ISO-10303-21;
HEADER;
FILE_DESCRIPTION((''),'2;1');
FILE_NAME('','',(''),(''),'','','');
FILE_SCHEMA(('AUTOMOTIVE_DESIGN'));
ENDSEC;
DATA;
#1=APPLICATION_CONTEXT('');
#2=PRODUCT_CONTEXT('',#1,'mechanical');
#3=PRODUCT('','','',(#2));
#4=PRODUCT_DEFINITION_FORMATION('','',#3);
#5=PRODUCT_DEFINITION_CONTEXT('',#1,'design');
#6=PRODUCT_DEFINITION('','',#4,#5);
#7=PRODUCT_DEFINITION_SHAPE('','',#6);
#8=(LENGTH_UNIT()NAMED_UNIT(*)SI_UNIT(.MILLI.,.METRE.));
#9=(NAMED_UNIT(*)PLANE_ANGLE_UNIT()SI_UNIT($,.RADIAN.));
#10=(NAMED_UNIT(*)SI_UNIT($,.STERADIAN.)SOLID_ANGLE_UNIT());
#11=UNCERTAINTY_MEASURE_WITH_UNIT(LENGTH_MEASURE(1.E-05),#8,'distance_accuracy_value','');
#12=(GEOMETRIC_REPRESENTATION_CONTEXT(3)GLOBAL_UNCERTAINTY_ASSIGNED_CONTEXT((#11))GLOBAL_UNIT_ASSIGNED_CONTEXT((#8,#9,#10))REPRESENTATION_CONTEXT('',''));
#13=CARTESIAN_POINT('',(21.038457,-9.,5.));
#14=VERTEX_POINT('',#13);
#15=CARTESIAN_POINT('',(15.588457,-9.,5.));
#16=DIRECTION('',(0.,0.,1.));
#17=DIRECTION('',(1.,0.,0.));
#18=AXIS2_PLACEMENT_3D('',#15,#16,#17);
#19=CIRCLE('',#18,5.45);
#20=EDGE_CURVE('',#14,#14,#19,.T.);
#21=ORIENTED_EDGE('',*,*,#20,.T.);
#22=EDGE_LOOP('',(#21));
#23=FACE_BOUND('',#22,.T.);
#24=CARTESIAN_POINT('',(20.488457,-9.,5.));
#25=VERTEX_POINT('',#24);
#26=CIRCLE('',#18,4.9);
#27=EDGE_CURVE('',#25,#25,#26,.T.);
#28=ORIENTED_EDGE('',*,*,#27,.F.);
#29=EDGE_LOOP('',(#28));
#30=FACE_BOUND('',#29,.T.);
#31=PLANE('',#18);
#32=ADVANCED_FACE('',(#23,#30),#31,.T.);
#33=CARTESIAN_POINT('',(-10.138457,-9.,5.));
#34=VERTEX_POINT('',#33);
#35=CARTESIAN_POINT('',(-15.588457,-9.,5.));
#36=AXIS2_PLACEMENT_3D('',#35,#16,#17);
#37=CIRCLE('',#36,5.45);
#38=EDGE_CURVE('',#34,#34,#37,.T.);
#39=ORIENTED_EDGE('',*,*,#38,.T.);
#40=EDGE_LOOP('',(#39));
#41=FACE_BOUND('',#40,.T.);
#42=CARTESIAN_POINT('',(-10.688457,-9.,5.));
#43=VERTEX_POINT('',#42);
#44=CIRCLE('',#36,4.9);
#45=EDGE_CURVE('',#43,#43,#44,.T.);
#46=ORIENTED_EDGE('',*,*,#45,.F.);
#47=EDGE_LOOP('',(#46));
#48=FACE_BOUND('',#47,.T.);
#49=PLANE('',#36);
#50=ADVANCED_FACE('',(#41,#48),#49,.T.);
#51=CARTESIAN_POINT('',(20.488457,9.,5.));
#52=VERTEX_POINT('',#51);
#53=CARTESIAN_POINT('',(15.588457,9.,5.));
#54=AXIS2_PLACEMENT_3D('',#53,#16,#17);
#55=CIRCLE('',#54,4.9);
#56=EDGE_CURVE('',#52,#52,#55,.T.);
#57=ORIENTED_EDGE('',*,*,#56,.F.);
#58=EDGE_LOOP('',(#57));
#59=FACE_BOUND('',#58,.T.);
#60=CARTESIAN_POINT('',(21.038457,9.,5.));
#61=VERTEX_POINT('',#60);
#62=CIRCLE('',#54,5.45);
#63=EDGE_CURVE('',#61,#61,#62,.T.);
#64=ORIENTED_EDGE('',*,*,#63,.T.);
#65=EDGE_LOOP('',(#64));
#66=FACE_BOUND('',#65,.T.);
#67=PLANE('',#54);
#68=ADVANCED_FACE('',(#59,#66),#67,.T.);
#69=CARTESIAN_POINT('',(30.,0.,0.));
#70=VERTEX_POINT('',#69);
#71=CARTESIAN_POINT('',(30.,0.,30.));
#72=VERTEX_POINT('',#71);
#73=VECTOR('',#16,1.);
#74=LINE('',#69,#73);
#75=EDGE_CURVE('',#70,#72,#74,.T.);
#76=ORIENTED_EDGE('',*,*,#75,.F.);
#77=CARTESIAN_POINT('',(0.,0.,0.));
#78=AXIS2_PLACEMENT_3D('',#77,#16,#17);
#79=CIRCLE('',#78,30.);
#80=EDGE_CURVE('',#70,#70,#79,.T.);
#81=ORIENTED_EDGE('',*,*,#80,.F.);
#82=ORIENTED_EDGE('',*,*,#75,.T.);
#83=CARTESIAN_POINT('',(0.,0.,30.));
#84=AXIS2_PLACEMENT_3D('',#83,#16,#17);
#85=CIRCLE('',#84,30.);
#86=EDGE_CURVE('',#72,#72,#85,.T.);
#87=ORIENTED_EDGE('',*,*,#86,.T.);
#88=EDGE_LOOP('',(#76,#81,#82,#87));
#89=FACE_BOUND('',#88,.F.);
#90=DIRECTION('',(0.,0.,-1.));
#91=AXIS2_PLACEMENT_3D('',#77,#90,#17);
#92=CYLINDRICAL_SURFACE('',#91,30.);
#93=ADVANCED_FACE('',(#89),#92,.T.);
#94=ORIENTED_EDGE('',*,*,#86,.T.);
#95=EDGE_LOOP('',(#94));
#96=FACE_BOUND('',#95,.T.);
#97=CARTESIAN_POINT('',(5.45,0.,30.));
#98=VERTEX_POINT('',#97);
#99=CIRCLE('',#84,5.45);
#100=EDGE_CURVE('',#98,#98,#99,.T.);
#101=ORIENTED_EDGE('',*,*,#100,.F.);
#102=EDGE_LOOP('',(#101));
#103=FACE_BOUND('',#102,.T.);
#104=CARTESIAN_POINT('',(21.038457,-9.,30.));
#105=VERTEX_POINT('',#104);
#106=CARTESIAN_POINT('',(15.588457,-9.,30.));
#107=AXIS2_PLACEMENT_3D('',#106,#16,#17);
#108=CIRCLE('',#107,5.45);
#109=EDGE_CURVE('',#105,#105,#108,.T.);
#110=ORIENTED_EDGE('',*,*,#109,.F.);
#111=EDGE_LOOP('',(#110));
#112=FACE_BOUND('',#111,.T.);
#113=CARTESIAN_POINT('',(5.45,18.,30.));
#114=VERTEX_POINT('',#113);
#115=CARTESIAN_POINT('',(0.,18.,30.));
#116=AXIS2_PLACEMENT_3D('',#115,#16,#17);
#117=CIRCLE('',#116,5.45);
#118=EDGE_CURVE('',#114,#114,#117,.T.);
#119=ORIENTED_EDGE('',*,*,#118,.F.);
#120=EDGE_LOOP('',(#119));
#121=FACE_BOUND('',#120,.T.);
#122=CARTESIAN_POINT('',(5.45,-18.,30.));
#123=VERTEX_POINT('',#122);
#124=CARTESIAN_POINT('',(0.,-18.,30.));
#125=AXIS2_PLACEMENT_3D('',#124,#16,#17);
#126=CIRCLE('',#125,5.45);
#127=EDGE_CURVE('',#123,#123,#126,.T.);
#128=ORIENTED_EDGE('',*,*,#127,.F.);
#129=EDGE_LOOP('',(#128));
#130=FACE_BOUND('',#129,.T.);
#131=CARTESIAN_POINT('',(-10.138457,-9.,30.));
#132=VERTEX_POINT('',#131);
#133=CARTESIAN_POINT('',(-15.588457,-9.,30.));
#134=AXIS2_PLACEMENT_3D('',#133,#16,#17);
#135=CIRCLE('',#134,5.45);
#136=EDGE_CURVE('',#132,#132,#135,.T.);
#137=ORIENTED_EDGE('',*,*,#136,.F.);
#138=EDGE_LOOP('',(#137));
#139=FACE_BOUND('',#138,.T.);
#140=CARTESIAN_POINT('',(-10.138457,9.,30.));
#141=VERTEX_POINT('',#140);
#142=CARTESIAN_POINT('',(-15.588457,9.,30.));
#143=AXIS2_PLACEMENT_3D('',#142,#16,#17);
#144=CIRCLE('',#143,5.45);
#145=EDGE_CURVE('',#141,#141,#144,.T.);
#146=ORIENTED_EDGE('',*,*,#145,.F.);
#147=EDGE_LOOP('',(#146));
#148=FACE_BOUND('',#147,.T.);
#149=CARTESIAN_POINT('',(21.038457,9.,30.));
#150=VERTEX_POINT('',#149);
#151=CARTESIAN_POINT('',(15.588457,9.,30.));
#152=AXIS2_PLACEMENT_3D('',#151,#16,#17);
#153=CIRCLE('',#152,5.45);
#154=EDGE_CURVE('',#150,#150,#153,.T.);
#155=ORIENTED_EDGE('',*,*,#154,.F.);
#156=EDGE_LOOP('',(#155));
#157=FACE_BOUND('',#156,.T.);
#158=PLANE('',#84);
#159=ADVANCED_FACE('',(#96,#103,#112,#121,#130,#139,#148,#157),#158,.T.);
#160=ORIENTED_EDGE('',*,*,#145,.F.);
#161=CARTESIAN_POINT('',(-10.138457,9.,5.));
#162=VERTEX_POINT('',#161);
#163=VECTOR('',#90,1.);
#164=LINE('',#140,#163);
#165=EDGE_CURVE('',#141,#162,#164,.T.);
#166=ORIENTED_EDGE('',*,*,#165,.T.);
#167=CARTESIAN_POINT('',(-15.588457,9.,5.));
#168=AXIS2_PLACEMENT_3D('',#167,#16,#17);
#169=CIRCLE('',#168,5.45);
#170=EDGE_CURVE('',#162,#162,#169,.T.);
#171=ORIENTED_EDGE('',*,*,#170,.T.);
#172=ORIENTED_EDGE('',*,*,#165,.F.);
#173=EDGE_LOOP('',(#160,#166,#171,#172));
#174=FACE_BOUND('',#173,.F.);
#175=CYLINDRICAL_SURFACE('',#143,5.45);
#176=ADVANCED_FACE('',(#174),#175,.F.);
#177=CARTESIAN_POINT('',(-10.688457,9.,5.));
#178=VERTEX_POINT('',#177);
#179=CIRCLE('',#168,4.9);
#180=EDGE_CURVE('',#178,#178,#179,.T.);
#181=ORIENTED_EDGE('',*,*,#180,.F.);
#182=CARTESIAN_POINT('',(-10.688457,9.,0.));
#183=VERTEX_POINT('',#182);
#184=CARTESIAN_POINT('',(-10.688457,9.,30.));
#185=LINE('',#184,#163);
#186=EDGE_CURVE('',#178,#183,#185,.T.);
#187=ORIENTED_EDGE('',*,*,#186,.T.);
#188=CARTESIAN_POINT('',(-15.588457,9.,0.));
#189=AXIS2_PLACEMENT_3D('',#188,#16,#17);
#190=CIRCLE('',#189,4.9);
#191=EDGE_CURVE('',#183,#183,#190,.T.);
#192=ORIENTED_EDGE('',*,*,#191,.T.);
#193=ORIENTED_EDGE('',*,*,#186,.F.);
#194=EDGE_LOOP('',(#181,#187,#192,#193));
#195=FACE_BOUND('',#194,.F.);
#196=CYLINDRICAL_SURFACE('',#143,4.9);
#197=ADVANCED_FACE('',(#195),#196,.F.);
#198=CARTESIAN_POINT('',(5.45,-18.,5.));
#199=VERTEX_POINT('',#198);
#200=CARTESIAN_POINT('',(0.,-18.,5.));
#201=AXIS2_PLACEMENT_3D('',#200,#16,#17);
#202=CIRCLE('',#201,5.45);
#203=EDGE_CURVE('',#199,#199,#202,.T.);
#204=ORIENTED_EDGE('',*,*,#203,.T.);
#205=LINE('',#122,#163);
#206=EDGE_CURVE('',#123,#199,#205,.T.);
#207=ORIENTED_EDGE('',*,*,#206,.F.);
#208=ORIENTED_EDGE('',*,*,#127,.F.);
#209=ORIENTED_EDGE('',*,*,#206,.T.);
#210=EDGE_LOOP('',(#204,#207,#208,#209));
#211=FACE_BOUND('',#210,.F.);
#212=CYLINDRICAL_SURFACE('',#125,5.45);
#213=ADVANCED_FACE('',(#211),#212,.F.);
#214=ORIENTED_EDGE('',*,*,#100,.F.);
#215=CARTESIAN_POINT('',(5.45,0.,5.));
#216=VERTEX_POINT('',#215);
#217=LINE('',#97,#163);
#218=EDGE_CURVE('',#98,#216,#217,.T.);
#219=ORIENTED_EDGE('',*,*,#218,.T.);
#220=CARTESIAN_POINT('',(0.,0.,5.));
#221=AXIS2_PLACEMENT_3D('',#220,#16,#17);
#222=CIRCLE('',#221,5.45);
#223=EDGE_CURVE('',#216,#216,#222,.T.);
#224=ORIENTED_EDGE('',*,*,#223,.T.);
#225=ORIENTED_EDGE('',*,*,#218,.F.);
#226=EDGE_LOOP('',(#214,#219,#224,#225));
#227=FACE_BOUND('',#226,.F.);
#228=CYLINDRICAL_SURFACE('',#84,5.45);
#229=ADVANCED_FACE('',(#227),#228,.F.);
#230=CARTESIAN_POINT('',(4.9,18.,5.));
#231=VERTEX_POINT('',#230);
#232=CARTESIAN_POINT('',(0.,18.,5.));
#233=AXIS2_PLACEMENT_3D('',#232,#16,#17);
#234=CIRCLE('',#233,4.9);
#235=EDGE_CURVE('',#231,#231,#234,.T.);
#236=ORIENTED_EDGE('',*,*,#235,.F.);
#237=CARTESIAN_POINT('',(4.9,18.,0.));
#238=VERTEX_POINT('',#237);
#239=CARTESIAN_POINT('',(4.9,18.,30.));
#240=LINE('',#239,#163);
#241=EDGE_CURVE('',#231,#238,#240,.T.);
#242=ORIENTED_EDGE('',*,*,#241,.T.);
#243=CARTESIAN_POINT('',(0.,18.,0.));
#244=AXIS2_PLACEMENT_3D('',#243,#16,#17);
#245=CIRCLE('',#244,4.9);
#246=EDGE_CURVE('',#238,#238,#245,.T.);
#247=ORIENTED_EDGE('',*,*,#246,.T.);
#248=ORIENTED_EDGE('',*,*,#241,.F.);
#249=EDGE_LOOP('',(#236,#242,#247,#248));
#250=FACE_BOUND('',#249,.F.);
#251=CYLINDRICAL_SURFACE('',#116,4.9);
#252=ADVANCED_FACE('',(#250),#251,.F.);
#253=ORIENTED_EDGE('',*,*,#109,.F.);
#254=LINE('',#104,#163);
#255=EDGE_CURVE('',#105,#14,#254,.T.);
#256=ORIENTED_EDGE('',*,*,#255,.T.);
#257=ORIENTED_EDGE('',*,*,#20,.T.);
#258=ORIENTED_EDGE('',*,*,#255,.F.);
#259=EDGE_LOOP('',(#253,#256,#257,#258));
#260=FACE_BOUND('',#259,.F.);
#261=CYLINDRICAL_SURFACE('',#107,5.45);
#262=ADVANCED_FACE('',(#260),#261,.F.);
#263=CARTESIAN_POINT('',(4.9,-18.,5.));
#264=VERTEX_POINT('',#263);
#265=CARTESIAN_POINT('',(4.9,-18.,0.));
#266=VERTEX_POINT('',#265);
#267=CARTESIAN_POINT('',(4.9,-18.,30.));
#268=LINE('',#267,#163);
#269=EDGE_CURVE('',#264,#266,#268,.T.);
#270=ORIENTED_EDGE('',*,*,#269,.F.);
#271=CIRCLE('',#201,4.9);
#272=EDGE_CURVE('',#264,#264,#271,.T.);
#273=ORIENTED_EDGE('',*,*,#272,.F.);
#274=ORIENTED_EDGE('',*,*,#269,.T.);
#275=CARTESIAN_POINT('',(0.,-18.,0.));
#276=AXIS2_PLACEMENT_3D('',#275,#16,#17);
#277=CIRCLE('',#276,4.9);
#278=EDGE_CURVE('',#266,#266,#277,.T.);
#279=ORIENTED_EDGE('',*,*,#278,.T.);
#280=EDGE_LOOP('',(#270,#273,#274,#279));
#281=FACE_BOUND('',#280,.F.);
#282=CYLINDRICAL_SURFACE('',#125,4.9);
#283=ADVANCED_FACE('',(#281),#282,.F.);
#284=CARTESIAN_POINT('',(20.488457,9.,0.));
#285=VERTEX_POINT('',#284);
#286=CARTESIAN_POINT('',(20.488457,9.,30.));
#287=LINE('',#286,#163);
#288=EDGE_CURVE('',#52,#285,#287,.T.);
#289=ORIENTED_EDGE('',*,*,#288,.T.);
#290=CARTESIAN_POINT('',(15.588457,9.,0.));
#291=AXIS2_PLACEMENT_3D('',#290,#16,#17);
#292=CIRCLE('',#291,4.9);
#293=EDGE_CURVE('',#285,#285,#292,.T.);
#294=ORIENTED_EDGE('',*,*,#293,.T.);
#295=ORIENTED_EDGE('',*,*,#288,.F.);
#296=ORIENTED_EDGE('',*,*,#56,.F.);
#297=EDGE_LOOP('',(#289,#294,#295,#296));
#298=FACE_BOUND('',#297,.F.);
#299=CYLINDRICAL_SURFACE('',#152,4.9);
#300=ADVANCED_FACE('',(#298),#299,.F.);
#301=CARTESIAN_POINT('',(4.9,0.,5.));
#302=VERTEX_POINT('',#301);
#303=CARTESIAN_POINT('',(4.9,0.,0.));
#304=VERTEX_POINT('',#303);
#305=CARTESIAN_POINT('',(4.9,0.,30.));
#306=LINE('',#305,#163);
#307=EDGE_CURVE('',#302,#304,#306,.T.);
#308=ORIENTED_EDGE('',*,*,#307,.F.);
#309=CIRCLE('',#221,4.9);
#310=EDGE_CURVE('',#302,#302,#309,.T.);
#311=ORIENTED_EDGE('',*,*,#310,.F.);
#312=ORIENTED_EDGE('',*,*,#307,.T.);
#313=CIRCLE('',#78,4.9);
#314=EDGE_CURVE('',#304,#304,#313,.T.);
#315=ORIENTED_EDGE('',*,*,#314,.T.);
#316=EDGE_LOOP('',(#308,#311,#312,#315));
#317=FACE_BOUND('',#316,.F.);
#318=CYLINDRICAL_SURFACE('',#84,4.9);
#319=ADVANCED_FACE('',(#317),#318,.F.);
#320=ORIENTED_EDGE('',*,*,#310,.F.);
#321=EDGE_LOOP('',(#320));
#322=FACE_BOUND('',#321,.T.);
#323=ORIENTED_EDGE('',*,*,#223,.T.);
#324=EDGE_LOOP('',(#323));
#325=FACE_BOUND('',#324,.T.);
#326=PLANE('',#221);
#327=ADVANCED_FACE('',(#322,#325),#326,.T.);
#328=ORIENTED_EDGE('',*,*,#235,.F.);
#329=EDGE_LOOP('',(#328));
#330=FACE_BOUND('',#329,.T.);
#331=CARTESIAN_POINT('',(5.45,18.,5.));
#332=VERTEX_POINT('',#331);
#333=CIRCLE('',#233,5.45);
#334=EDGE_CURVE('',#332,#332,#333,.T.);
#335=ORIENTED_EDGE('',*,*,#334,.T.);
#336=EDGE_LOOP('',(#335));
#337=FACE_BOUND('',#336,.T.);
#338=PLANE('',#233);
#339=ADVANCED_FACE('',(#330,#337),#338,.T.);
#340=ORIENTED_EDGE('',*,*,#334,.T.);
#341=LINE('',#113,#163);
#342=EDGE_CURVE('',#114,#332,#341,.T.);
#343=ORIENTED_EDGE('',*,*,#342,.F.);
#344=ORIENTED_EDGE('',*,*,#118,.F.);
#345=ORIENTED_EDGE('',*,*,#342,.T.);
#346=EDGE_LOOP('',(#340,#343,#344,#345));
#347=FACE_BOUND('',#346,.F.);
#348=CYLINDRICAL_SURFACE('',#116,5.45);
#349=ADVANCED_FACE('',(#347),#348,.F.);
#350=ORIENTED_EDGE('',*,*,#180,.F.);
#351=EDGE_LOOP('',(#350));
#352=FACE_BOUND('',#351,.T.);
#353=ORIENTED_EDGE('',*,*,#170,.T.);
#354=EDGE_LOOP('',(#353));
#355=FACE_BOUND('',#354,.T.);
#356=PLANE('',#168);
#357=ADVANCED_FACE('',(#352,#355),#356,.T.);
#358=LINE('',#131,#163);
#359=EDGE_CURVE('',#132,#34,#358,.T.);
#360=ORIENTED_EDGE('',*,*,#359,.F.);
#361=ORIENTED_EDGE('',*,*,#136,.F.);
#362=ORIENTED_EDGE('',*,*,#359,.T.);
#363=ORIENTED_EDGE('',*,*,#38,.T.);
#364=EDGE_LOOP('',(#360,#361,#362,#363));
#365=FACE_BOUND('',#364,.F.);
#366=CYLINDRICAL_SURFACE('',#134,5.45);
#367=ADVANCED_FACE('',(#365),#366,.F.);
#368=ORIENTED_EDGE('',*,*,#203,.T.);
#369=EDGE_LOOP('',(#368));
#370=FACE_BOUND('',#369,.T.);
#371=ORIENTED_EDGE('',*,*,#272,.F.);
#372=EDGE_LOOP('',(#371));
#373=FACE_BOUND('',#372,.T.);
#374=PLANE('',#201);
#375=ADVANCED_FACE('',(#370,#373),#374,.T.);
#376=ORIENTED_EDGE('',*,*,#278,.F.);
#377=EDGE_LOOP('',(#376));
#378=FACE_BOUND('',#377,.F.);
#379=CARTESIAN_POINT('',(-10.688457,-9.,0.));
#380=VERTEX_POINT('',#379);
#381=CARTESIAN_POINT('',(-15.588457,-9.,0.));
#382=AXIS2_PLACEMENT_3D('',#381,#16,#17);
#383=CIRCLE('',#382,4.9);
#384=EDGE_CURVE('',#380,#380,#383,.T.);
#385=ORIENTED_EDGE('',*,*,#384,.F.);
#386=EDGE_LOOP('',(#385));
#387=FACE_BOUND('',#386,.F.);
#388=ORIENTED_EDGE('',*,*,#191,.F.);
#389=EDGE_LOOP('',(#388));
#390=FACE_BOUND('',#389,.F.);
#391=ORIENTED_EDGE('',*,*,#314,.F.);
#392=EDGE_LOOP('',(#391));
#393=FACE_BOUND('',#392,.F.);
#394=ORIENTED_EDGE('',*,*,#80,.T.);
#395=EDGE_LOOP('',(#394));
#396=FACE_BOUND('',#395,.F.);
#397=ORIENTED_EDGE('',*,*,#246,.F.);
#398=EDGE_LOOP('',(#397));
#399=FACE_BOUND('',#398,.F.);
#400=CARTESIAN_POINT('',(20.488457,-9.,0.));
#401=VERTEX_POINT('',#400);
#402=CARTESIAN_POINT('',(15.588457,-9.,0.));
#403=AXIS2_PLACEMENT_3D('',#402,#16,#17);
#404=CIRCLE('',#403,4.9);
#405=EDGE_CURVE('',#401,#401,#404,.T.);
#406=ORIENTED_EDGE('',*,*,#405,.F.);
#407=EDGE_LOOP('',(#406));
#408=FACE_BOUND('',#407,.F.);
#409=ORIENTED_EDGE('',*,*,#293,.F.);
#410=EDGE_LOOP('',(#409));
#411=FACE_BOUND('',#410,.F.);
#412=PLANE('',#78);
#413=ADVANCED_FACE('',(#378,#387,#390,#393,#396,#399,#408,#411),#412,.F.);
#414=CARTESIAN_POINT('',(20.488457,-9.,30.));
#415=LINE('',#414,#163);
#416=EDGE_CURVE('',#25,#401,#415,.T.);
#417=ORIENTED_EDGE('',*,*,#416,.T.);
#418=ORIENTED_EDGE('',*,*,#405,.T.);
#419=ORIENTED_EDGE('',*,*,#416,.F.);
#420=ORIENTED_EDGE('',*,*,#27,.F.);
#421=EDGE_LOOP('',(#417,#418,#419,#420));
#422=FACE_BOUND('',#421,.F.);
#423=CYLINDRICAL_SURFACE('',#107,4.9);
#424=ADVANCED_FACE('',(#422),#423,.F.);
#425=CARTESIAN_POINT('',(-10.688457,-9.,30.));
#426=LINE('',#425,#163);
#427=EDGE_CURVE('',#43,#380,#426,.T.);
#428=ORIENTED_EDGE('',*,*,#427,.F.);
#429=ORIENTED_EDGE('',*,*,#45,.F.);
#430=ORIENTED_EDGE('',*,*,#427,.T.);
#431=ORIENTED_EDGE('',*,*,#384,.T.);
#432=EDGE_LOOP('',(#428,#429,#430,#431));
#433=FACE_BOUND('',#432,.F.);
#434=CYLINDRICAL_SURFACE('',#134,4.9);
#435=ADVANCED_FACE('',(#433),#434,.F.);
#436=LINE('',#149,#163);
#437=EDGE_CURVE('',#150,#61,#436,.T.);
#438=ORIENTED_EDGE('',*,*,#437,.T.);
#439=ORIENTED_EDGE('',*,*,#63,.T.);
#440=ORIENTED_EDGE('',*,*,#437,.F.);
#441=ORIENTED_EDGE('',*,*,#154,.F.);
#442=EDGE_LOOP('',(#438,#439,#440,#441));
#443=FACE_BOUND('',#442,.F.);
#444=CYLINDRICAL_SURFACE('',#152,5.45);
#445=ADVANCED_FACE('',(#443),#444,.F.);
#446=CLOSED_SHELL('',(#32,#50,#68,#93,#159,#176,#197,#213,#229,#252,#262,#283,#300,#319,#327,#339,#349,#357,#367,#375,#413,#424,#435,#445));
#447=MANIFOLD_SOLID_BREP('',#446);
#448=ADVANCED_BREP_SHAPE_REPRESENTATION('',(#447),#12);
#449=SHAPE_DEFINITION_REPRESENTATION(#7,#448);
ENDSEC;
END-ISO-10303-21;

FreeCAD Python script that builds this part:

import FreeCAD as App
import Part
import Sketcher

V = App.Vector

doc = App.newDocument("Part")
params = doc.addObject("Spreadsheet::Sheet", "Params")
for row, (alias, value) in enumerate([
    ("sketch1_diameter", "60 mm"),
    ("pad1_length", "30 mm"),
    ("sketch2_diameter", "9.8 mm"),
    ("sketch3_diameter", "10.9 mm"),
    ("pocket2_length", "25 mm"),
], start=1):
    params.set(f"A{row}", alias)
    params.set(f"B{row}", "=" + value)
    params.setAlias(f"B{row}", alias)

body = doc.addObject("PartDesign::Body", "Body")

sketch1 = doc.addObject("Sketcher::SketchObject", "Sketch")
body.addObject(sketch1)
sketch1.AttachmentSupport = (doc.XY_Plane, [""])
sketch1.MapMode = "FlatFace"
sketch1.addGeometry(Part.Circle(V(0, 0, 0), V(0, 0, 1), 30), False)
sketch1.addConstraint([
    Sketcher.Constraint("Coincident", 0, 3, -1, 1),
    Sketcher.Constraint("Diameter", 0, 60.0),
])
sketch1.setExpression("Constraints[1]", "Params.sketch1_diameter")
pad1 = doc.addObject("PartDesign::Pad", "Pad")
body.addObject(pad1)
pad1.Profile = sketch1
pad1.setExpression("Length", "Params.pad1_length")

sketch2 = doc.addObject("Sketcher::SketchObject", "Sketch001")
body.addObject(sketch2)
sketch2.AttachmentSupport = (doc.XY_Plane, [""])
sketch2.MapMode = "FlatFace"
sketch2.AttachmentOffset = App.Placement(V(0, 0, 30), App.Rotation())
sketch2.addGeometry([
    Part.Circle(V(0, 0, 0), V(0, 0, 1), 4.9),
    Part.Circle(V(0, 18, 0), V(0, 0, 1), 4.9),
    Part.Circle(V(-15.588457, 9, 0), V(0, 0, 1), 4.9),
    Part.Circle(V(-15.588457, -9, 0), V(0, 0, 1), 4.9),
    Part.Circle(V(0, -18, 0), V(0, 0, 1), 4.9),
    Part.Circle(V(15.588457, -9, 0), V(0, 0, 1), 4.9),
    Part.Circle(V(15.588457, 9, 0), V(0, 0, 1), 4.9),
], False)
sketch2.addConstraint([
    Sketcher.Constraint("Coincident", 0, 3, -1, 1),
    Sketcher.Constraint("Equal", 0, 1),
    Sketcher.Constraint("Equal", 1, 2),
    Sketcher.Constraint("Equal", 2, 3),
    Sketcher.Constraint("Equal", 3, 4),
    Sketcher.Constraint("Equal", 4, 5),
    Sketcher.Constraint("Equal", 5, 6),
    Sketcher.Constraint("Symmetric", 1, 3, 4, 3, -1, 1),
    Sketcher.Constraint("Symmetric", 2, 3, 5, 3, -1, 1),
    Sketcher.Constraint("Symmetric", 3, 3, 6, 3, -1, 1),
    Sketcher.Constraint("Symmetric", 3, 3, 5, 3, -2),
    Sketcher.Constraint("PointOnObject", 1, 3, -2),
    Sketcher.Constraint("Diameter", 0, 9.8),
    Sketcher.Constraint("DistanceY", -1, 1, 1, 3, 18.0),
    Sketcher.Constraint("DistanceY", -1, 1, 2, 3, 9.0),
    Sketcher.Constraint("DistanceX", 2, 3, -1, 1, 15.588457),
])
sketch2.setExpression("Constraints[12]", "Params.sketch2_diameter")
pocket1 = doc.addObject("PartDesign::Pocket", "Pocket")
body.addObject(pocket1)
pocket1.Profile = sketch2
pocket1.Type = "ThroughAll"

sketch3 = doc.addObject("Sketcher::SketchObject", "Sketch002")
body.addObject(sketch3)
sketch3.AttachmentSupport = (doc.XY_Plane, [""])
sketch3.MapMode = "FlatFace"
sketch3.AttachmentOffset = App.Placement(V(0, 0, 30), App.Rotation())
sketch3.addGeometry([
    Part.Circle(V(0, 0, 0), V(0, 0, 1), 5.45),
    Part.Circle(V(0, 18, 0), V(0, 0, 1), 5.45),
    Part.Circle(V(-15.588457, 9, 0), V(0, 0, 1), 5.45),
    Part.Circle(V(-15.588457, -9, 0), V(0, 0, 1), 5.45),
    Part.Circle(V(0, -18, 0), V(0, 0, 1), 5.45),
    Part.Circle(V(15.588457, -9, 0), V(0, 0, 1), 5.45),
    Part.Circle(V(15.588457, 9, 0), V(0, 0, 1), 5.45),
], False)
sketch3.addConstraint([
    Sketcher.Constraint("Coincident", 0, 3, -1, 1),
    Sketcher.Constraint("Equal", 0, 1),
    Sketcher.Constraint("Equal", 1, 2),
    Sketcher.Constraint("Equal", 2, 3),
    Sketcher.Constraint("Equal", 3, 4),
    Sketcher.Constraint("Equal", 4, 5),
    Sketcher.Constraint("Equal", 5, 6),
    Sketcher.Constraint("Symmetric", 1, 3, 4, 3, -1, 1),
    Sketcher.Constraint("Symmetric", 2, 3, 5, 3, -1, 1),
    Sketcher.Constraint("Symmetric", 3, 3, 6, 3, -1, 1),
    Sketcher.Constraint("Symmetric", 3, 3, 5, 3, -2),
    Sketcher.Constraint("PointOnObject", 1, 3, -2),
    Sketcher.Constraint("Diameter", 0, 10.9),
    Sketcher.Constraint("DistanceY", -1, 1, 1, 3, 18.0),
    Sketcher.Constraint("DistanceY", -1, 1, 2, 3, 9.0),
    Sketcher.Constraint("DistanceX", 2, 3, -1, 1, 15.588457),
])
sketch3.setExpression("Constraints[12]", "Params.sketch3_diameter")
pocket2 = doc.addObject("PartDesign::Pocket", "Pocket001")
body.addObject(pocket2)
pocket2.Profile = sketch3
pocket2.setExpression("Length", "Params.pocket2_length")

doc.recompute()
